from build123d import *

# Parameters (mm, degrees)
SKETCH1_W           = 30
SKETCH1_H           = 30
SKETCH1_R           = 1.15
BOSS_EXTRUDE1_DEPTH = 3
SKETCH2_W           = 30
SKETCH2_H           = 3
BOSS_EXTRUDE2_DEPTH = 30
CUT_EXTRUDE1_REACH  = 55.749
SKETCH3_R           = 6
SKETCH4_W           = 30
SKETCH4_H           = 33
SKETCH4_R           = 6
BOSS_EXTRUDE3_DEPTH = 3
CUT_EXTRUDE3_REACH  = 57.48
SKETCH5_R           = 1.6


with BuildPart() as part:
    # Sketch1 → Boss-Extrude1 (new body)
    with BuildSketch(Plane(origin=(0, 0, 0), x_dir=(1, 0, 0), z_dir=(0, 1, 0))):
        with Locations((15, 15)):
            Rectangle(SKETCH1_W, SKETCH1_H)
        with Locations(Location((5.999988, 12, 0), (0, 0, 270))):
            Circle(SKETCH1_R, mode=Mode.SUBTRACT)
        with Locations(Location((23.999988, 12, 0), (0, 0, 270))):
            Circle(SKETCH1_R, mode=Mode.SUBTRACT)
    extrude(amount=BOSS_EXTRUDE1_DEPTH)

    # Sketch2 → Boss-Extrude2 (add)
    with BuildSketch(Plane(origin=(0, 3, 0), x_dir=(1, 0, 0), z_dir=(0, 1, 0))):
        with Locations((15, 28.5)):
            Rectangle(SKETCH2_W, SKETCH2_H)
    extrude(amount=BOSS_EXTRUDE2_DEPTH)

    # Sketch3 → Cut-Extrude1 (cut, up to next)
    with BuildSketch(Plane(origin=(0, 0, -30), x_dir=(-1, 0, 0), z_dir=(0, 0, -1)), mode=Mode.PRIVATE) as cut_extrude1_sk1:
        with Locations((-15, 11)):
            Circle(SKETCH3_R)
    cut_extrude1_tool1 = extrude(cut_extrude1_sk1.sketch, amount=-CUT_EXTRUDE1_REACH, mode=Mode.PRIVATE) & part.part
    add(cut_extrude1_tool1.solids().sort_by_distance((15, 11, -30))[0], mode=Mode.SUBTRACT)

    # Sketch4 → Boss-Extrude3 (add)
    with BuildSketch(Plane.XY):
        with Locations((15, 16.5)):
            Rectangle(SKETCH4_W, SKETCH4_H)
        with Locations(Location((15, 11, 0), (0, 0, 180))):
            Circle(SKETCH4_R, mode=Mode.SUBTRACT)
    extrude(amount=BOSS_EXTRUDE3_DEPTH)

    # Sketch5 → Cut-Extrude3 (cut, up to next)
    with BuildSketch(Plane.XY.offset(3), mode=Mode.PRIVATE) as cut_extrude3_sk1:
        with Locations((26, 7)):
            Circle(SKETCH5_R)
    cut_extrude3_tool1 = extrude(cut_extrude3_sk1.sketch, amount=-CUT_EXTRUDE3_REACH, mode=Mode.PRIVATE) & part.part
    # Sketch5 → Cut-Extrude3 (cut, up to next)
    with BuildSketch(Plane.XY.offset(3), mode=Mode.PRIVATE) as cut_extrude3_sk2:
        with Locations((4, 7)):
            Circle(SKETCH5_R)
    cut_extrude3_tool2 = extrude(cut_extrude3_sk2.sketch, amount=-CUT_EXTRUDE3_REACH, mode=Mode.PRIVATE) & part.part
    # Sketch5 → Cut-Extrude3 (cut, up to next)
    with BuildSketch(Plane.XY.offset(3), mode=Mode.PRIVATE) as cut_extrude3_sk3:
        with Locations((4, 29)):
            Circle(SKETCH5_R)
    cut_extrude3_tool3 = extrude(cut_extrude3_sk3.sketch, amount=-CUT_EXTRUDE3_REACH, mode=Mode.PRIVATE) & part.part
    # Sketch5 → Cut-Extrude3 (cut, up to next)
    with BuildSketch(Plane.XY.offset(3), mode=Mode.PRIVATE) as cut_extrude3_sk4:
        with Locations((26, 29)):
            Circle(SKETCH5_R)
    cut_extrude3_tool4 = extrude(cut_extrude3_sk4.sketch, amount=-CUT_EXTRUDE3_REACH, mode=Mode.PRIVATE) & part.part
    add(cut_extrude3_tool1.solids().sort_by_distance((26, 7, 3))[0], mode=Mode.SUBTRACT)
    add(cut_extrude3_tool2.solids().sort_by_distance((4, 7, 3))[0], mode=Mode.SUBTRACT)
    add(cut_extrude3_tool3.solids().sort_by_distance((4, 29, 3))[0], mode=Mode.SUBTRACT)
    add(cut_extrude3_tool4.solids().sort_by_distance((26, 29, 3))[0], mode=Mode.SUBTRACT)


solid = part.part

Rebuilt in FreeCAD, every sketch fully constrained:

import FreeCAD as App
import Part
import Sketcher

V = App.Vector
Q = App.Units.Quantity

doc = App.newDocument("Part")
body = doc.addObject("PartDesign::Body", "Body")

# Sketch on XZ plane
sketch1 = doc.addObject("Sketcher::SketchObject", "Sketch")
body.addObject(sketch1)
sketch1.AttachmentSupport = (doc.XZ_Plane, [""])
sketch1.MapMode = "FlatFace"
sketch1.addGeometry(Part.LineSegment(V(0, -30, 0), V(0, 0, 0)), False)
sketch1.addGeometry(Part.LineSegment(V(0, 0, 0), V(30, 0, 0)), False)
sketch1.addGeometry(Part.LineSegment(V(30, 0, 0), V(30, -30, 0)), False)
sketch1.addGeometry(Part.LineSegment(V(30, -30, 0), V(0, -30, 0)), False)
sketch1.addGeometry(Part.Circle(V(5.999988, -12, 0), V(0, 0, 1), 1.15), False)
sketch1.addGeometry(Part.Circle(V(23.999988, -12, 0), V(0, 0, 1), 1.15), False)
sketch1.addConstraint(Sketcher.Constraint("Coincident", 0, 2, 1, 1))
sketch1.addConstraint(Sketcher.Constraint("Coincident", 1, 2, 2, 1))
sketch1.addConstraint(Sketcher.Constraint("Coincident", 2, 2, 3, 1))
sketch1.addConstraint(Sketcher.Constraint("Coincident", 3, 2, 0, 1))
sketch1.addConstraint(Sketcher.Constraint("Vertical", 0))
sketch1.addConstraint(Sketcher.Constraint("Horizontal", 1))
sketch1.addConstraint(Sketcher.Constraint("Vertical", 2))
sketch1.addConstraint(Sketcher.Constraint("Horizontal", 3))
sketch1.addConstraint(Sketcher.Constraint("Coincident", 0, 2, -1, 1))
sketch1.addConstraint(Sketcher.Constraint("Equal", 4, 5))
sketch1.addConstraint(Sketcher.Constraint("Horizontal", 4, 3, 5, 3))
sketch1.addConstraint(Sketcher.Constraint("Equal", 3, 0))
sketch1.addConstraint(Sketcher.Constraint("Diameter", 4, Q("2.3 mm")))
sketch1.addConstraint(Sketcher.Constraint("DistanceX", 1, 1, 1, 2, Q("30 mm")))
sketch1.addConstraint(Sketcher.Constraint("DistanceY", 4, 3, -1, 1, Q("12 mm")))
sketch1.addConstraint(Sketcher.Constraint("DistanceX", 4, 3, 5, 3, Q("18 mm")))
sketch1.addConstraint(Sketcher.Constraint("DistanceX", 4, 3, 1, 2, Q("24.000012 mm")))
pad1 = doc.addObject("PartDesign::Pad", "Pad")
body.addObject(pad1)
pad1.Profile = sketch1
pad1.Length = 3
pad1.Reversed = True

# Sketch on XZ plane
sketch2 = doc.addObject("Sketcher::SketchObject", "Sketch001")
body.addObject(sketch2)
sketch2.AttachmentSupport = (doc.XZ_Plane, [""])
sketch2.MapMode = "FlatFace"
sketch2.AttachmentOffset = App.Placement(V(0, 0, -3), App.Rotation())
sketch2.addGeometry(Part.LineSegment(V(0, -30, 0), V(0, -27, 0)), False)
sketch2.addGeometry(Part.LineSegment(V(0, -27, 0), V(30, -27, 0)), False)
sketch2.addGeometry(Part.LineSegment(V(30, -27, 0), V(30, -30, 0)), False)
sketch2.addGeometry(Part.LineSegment(V(30, -30, 0), V(0, -30, 0)), False)
sketch2.addConstraint(Sketcher.Constraint("Coincident", 0, 2, 1, 1))
sketch2.addConstraint(Sketcher.Constraint("Coincident", 1, 2, 2, 1))
sketch2.addConstraint(Sketcher.Constraint("Coincident", 2, 2, 3, 1))
sketch2.addConstraint(Sketcher.Constraint("Coincident", 3, 2, 0, 1))
sketch2.addConstraint(Sketcher.Constraint("Vertical", 0))
sketch2.addConstraint(Sketcher.Constraint("Horizontal", 1))
sketch2.addConstraint(Sketcher.Constraint("Vertical", 2))
sketch2.addConstraint(Sketcher.Constraint("Horizontal", 3))
sketch2.addConstraint(Sketcher.Constraint("PointOnObject", 0, 2, -2))
sketch2.addConstraint(Sketcher.Constraint("DistanceX", 1, 1, 1, 2, Q("30 mm")))
sketch2.addConstraint(Sketcher.Constraint("DistanceY", 0, 1, 0, 2, Q("3 mm")))
sketch2.addConstraint(Sketcher.Constraint("DistanceY", 0, 2, -1, 1, Q("27 mm")))
pad2 = doc.addObject("PartDesign::Pad", "Pad001")
body.addObject(pad2)
pad2.Profile = sketch2
pad2.Length = 30
pad2.Reversed = True

# Sketch on XY plane
sketch3 = doc.addObject("Sketcher::SketchObject", "Sketch002")
body.addObject(sketch3)
sketch3.AttachmentSupport = (doc.XY_Plane, [""])
sketch3.MapMode = "FlatFace"
sketch3.AttachmentOffset = App.Placement(V(0, 0, -30), App.Rotation())
sketch3.addGeometry(Part.Circle(V(15, 11, 0), V(0, 0, 1), 6), False)
sketch3.addConstraint(Sketcher.Constraint("Diameter", 0, Q("12 mm")))
sketch3.addConstraint(Sketcher.Constraint("DistanceX", -1, 1, 0, 3, Q("15 mm")))
sketch3.addConstraint(Sketcher.Constraint("DistanceY", -1, 1, 0, 3, Q("11 mm")))
pocket1 = doc.addObject("PartDesign::Pocket", "Pocket")
body.addObject(pocket1)
pocket1.Profile = sketch3
pocket1.Type = "UpToFirst"
pocket1.Reversed = True

# Sketch on XY plane
sketch4 = doc.addObject("Sketcher::SketchObject", "Sketch003")
body.addObject(sketch4)
sketch4.AttachmentSupport = (doc.XY_Plane, [""])
sketch4.MapMode = "FlatFace"
sketch4.addGeometry(Part.LineSegment(V(0, 33, 0), V(0, 0, 0)), False)
sketch4.addGeometry(Part.LineSegment(V(0, 0, 0), V(30, 0, 0)), False)
sketch4.addGeometry(Part.LineSegment(V(30, 0, 0), V(30, 33, 0)), False)
sketch4.addGeometry(Part.LineSegment(V(30, 33, 0), V(0, 33, 0)), False)
sketch4.addGeometry(Part.Circle(V(15, 11, 0), V(0, 0, 1), 6), False)
sketch4.addConstraint(Sketcher.Constraint("Coincident", 0, 2, 1, 1))
sketch4.addConstraint(Sketcher.Constraint("Coincident", 1, 2, 2, 1))
sketch4.addConstraint(Sketcher.Constraint("Coincident", 2, 2, 3, 1))
sketch4.addConstraint(Sketcher.Constraint("Coincident", 3, 2, 0, 1))
sketch4.addConstraint(Sketcher.Constraint("Vertical", 0))
sketch4.addConstraint(Sketcher.Constraint("Horizontal", 1))
sketch4.addConstraint(Sketcher.Constraint("Vertical", 2))
sketch4.addConstraint(Sketcher.Constraint("Horizontal", 3))
sketch4.addConstraint(Sketcher.Constraint("Coincident", 0, 2, -1, 1))
sketch4.addConstraint(Sketcher.Constraint("Diameter", 4, Q("12 mm")))
sketch4.addConstraint(Sketcher.Constraint("DistanceX", 1, 1, 1, 2, Q("30 mm")))
sketch4.addConstraint(Sketcher.Constraint("DistanceY", 0, 2, 0, 1, Q("33 mm")))
sketch4.addConstraint(Sketcher.Constraint("DistanceX", -1, 1, 4, 3, Q("15 mm")))
sketch4.addConstraint(Sketcher.Constraint("DistanceY", -1, 1, 4, 3, Q("11 mm")))
pad3 = doc.addObject("PartDesign::Pad", "Pad002")
body.addObject(pad3)
pad3.Profile = sketch4
pad3.Length = 3

# Sketch on XY plane
sketch5 = doc.addObject("Sketcher::SketchObject", "Sketch004")
body.addObject(sketch5)
sketch5.AttachmentSupport = (doc.XY_Plane, [""])
sketch5.MapMode = "FlatFace"
sketch5.AttachmentOffset = App.Placement(V(0, 0, 3), App.Rotation())
sketch5.addGeometry(Part.Circle(V(26, 7, 0), V(0, 0, 1), 1.6), False)
sketch5.addConstraint(Sketcher.Constraint("Diameter", 0, Q("3.2 mm")))
sketch5.addConstraint(Sketcher.Constraint("DistanceX", -1, 1, 0, 3, Q("26 mm")))
sketch5.addConstraint(Sketcher.Constraint("DistanceY", -1, 1, 0, 3, Q("7 mm")))
pocket2 = doc.addObject("PartDesign::Pocket", "Pocket001")
body.addObject(pocket2)
pocket2.Profile = sketch5
pocket2.Type = "UpToFirst"

# Sketch on XY plane
sketch6 = doc.addObject("Sketcher::SketchObject", "Sketch005")
body.addObject(sketch6)
sketch6.AttachmentSupport = (doc.XY_Plane, [""])
sketch6.MapMode = "FlatFace"
sketch6.AttachmentOffset = App.Placement(V(0, 0, 3), App.Rotation())
sketch6.addGeometry(Part.Circle(V(4, 7, 0), V(0, 0, 1), 1.6), False)
sketch6.addConstraint(Sketcher.Constraint("Diameter", 0, Q("3.2 mm")))
sketch6.addConstraint(Sketcher.Constraint("DistanceX", -1, 1, 0, 3, Q("4 mm")))
sketch6.addConstraint(Sketcher.Constraint("DistanceY", -1, 1, 0, 3, Q("7 mm")))
pocket3 = doc.addObject("PartDesign::Pocket", "Pocket002")
body.addObject(pocket3)
pocket3.Profile = sketch6
pocket3.Type = "UpToFirst"

# Sketch on XY plane
sketch7 = doc.addObject("Sketcher::SketchObject", "Sketch006")
body.addObject(sketch7)
sketch7.AttachmentSupport = (doc.XY_Plane, [""])
sketch7.MapMode = "FlatFace"
sketch7.AttachmentOffset = App.Placement(V(0, 0, 3), App.Rotation())
sketch7.addGeometry(Part.Circle(V(4, 29, 0), V(0, 0, 1), 1.6), False)
sketch7.addConstraint(Sketcher.Constraint("Diameter", 0, Q("3.2 mm")))
sketch7.addConstraint(Sketcher.Constraint("DistanceX", -1, 1, 0, 3, Q("4 mm")))
sketch7.addConstraint(Sketcher.Constraint("DistanceY", -1, 1, 0, 3, Q("29 mm")))
pocket4 = doc.addObject("PartDesign::Pocket", "Pocket003")
body.addObject(pocket4)
pocket4.Profile = sketch7
pocket4.Type = "UpToFirst"

# Sketch on XY plane
sketch8 = doc.addObject("Sketcher::SketchObject", "Sketch007")
body.addObject(sketch8)
sketch8.AttachmentSupport = (doc.XY_Plane, [""])
sketch8.MapMode = "FlatFace"
sketch8.AttachmentOffset = App.Placement(V(0, 0, 3), App.Rotation())
sketch8.addGeometry(Part.Circle(V(26, 29, 0), V(0, 0, 1), 1.6), False)
sketch8.addConstraint(Sketcher.Constraint("Diameter", 0, Q("3.2 mm")))
sketch8.addConstraint(Sketcher.Constraint("DistanceX", -1, 1, 0, 3, Q("26 mm")))
sketch8.addConstraint(Sketcher.Constraint("DistanceY", -1, 1, 0, 3, Q("29 mm")))
pocket5 = doc.addObject("PartDesign::Pocket", "Pocket004")
body.addObject(pocket5)
pocket5.Profile = sketch8
pocket5.Type = "UpToFirst"

doc.recompute()
